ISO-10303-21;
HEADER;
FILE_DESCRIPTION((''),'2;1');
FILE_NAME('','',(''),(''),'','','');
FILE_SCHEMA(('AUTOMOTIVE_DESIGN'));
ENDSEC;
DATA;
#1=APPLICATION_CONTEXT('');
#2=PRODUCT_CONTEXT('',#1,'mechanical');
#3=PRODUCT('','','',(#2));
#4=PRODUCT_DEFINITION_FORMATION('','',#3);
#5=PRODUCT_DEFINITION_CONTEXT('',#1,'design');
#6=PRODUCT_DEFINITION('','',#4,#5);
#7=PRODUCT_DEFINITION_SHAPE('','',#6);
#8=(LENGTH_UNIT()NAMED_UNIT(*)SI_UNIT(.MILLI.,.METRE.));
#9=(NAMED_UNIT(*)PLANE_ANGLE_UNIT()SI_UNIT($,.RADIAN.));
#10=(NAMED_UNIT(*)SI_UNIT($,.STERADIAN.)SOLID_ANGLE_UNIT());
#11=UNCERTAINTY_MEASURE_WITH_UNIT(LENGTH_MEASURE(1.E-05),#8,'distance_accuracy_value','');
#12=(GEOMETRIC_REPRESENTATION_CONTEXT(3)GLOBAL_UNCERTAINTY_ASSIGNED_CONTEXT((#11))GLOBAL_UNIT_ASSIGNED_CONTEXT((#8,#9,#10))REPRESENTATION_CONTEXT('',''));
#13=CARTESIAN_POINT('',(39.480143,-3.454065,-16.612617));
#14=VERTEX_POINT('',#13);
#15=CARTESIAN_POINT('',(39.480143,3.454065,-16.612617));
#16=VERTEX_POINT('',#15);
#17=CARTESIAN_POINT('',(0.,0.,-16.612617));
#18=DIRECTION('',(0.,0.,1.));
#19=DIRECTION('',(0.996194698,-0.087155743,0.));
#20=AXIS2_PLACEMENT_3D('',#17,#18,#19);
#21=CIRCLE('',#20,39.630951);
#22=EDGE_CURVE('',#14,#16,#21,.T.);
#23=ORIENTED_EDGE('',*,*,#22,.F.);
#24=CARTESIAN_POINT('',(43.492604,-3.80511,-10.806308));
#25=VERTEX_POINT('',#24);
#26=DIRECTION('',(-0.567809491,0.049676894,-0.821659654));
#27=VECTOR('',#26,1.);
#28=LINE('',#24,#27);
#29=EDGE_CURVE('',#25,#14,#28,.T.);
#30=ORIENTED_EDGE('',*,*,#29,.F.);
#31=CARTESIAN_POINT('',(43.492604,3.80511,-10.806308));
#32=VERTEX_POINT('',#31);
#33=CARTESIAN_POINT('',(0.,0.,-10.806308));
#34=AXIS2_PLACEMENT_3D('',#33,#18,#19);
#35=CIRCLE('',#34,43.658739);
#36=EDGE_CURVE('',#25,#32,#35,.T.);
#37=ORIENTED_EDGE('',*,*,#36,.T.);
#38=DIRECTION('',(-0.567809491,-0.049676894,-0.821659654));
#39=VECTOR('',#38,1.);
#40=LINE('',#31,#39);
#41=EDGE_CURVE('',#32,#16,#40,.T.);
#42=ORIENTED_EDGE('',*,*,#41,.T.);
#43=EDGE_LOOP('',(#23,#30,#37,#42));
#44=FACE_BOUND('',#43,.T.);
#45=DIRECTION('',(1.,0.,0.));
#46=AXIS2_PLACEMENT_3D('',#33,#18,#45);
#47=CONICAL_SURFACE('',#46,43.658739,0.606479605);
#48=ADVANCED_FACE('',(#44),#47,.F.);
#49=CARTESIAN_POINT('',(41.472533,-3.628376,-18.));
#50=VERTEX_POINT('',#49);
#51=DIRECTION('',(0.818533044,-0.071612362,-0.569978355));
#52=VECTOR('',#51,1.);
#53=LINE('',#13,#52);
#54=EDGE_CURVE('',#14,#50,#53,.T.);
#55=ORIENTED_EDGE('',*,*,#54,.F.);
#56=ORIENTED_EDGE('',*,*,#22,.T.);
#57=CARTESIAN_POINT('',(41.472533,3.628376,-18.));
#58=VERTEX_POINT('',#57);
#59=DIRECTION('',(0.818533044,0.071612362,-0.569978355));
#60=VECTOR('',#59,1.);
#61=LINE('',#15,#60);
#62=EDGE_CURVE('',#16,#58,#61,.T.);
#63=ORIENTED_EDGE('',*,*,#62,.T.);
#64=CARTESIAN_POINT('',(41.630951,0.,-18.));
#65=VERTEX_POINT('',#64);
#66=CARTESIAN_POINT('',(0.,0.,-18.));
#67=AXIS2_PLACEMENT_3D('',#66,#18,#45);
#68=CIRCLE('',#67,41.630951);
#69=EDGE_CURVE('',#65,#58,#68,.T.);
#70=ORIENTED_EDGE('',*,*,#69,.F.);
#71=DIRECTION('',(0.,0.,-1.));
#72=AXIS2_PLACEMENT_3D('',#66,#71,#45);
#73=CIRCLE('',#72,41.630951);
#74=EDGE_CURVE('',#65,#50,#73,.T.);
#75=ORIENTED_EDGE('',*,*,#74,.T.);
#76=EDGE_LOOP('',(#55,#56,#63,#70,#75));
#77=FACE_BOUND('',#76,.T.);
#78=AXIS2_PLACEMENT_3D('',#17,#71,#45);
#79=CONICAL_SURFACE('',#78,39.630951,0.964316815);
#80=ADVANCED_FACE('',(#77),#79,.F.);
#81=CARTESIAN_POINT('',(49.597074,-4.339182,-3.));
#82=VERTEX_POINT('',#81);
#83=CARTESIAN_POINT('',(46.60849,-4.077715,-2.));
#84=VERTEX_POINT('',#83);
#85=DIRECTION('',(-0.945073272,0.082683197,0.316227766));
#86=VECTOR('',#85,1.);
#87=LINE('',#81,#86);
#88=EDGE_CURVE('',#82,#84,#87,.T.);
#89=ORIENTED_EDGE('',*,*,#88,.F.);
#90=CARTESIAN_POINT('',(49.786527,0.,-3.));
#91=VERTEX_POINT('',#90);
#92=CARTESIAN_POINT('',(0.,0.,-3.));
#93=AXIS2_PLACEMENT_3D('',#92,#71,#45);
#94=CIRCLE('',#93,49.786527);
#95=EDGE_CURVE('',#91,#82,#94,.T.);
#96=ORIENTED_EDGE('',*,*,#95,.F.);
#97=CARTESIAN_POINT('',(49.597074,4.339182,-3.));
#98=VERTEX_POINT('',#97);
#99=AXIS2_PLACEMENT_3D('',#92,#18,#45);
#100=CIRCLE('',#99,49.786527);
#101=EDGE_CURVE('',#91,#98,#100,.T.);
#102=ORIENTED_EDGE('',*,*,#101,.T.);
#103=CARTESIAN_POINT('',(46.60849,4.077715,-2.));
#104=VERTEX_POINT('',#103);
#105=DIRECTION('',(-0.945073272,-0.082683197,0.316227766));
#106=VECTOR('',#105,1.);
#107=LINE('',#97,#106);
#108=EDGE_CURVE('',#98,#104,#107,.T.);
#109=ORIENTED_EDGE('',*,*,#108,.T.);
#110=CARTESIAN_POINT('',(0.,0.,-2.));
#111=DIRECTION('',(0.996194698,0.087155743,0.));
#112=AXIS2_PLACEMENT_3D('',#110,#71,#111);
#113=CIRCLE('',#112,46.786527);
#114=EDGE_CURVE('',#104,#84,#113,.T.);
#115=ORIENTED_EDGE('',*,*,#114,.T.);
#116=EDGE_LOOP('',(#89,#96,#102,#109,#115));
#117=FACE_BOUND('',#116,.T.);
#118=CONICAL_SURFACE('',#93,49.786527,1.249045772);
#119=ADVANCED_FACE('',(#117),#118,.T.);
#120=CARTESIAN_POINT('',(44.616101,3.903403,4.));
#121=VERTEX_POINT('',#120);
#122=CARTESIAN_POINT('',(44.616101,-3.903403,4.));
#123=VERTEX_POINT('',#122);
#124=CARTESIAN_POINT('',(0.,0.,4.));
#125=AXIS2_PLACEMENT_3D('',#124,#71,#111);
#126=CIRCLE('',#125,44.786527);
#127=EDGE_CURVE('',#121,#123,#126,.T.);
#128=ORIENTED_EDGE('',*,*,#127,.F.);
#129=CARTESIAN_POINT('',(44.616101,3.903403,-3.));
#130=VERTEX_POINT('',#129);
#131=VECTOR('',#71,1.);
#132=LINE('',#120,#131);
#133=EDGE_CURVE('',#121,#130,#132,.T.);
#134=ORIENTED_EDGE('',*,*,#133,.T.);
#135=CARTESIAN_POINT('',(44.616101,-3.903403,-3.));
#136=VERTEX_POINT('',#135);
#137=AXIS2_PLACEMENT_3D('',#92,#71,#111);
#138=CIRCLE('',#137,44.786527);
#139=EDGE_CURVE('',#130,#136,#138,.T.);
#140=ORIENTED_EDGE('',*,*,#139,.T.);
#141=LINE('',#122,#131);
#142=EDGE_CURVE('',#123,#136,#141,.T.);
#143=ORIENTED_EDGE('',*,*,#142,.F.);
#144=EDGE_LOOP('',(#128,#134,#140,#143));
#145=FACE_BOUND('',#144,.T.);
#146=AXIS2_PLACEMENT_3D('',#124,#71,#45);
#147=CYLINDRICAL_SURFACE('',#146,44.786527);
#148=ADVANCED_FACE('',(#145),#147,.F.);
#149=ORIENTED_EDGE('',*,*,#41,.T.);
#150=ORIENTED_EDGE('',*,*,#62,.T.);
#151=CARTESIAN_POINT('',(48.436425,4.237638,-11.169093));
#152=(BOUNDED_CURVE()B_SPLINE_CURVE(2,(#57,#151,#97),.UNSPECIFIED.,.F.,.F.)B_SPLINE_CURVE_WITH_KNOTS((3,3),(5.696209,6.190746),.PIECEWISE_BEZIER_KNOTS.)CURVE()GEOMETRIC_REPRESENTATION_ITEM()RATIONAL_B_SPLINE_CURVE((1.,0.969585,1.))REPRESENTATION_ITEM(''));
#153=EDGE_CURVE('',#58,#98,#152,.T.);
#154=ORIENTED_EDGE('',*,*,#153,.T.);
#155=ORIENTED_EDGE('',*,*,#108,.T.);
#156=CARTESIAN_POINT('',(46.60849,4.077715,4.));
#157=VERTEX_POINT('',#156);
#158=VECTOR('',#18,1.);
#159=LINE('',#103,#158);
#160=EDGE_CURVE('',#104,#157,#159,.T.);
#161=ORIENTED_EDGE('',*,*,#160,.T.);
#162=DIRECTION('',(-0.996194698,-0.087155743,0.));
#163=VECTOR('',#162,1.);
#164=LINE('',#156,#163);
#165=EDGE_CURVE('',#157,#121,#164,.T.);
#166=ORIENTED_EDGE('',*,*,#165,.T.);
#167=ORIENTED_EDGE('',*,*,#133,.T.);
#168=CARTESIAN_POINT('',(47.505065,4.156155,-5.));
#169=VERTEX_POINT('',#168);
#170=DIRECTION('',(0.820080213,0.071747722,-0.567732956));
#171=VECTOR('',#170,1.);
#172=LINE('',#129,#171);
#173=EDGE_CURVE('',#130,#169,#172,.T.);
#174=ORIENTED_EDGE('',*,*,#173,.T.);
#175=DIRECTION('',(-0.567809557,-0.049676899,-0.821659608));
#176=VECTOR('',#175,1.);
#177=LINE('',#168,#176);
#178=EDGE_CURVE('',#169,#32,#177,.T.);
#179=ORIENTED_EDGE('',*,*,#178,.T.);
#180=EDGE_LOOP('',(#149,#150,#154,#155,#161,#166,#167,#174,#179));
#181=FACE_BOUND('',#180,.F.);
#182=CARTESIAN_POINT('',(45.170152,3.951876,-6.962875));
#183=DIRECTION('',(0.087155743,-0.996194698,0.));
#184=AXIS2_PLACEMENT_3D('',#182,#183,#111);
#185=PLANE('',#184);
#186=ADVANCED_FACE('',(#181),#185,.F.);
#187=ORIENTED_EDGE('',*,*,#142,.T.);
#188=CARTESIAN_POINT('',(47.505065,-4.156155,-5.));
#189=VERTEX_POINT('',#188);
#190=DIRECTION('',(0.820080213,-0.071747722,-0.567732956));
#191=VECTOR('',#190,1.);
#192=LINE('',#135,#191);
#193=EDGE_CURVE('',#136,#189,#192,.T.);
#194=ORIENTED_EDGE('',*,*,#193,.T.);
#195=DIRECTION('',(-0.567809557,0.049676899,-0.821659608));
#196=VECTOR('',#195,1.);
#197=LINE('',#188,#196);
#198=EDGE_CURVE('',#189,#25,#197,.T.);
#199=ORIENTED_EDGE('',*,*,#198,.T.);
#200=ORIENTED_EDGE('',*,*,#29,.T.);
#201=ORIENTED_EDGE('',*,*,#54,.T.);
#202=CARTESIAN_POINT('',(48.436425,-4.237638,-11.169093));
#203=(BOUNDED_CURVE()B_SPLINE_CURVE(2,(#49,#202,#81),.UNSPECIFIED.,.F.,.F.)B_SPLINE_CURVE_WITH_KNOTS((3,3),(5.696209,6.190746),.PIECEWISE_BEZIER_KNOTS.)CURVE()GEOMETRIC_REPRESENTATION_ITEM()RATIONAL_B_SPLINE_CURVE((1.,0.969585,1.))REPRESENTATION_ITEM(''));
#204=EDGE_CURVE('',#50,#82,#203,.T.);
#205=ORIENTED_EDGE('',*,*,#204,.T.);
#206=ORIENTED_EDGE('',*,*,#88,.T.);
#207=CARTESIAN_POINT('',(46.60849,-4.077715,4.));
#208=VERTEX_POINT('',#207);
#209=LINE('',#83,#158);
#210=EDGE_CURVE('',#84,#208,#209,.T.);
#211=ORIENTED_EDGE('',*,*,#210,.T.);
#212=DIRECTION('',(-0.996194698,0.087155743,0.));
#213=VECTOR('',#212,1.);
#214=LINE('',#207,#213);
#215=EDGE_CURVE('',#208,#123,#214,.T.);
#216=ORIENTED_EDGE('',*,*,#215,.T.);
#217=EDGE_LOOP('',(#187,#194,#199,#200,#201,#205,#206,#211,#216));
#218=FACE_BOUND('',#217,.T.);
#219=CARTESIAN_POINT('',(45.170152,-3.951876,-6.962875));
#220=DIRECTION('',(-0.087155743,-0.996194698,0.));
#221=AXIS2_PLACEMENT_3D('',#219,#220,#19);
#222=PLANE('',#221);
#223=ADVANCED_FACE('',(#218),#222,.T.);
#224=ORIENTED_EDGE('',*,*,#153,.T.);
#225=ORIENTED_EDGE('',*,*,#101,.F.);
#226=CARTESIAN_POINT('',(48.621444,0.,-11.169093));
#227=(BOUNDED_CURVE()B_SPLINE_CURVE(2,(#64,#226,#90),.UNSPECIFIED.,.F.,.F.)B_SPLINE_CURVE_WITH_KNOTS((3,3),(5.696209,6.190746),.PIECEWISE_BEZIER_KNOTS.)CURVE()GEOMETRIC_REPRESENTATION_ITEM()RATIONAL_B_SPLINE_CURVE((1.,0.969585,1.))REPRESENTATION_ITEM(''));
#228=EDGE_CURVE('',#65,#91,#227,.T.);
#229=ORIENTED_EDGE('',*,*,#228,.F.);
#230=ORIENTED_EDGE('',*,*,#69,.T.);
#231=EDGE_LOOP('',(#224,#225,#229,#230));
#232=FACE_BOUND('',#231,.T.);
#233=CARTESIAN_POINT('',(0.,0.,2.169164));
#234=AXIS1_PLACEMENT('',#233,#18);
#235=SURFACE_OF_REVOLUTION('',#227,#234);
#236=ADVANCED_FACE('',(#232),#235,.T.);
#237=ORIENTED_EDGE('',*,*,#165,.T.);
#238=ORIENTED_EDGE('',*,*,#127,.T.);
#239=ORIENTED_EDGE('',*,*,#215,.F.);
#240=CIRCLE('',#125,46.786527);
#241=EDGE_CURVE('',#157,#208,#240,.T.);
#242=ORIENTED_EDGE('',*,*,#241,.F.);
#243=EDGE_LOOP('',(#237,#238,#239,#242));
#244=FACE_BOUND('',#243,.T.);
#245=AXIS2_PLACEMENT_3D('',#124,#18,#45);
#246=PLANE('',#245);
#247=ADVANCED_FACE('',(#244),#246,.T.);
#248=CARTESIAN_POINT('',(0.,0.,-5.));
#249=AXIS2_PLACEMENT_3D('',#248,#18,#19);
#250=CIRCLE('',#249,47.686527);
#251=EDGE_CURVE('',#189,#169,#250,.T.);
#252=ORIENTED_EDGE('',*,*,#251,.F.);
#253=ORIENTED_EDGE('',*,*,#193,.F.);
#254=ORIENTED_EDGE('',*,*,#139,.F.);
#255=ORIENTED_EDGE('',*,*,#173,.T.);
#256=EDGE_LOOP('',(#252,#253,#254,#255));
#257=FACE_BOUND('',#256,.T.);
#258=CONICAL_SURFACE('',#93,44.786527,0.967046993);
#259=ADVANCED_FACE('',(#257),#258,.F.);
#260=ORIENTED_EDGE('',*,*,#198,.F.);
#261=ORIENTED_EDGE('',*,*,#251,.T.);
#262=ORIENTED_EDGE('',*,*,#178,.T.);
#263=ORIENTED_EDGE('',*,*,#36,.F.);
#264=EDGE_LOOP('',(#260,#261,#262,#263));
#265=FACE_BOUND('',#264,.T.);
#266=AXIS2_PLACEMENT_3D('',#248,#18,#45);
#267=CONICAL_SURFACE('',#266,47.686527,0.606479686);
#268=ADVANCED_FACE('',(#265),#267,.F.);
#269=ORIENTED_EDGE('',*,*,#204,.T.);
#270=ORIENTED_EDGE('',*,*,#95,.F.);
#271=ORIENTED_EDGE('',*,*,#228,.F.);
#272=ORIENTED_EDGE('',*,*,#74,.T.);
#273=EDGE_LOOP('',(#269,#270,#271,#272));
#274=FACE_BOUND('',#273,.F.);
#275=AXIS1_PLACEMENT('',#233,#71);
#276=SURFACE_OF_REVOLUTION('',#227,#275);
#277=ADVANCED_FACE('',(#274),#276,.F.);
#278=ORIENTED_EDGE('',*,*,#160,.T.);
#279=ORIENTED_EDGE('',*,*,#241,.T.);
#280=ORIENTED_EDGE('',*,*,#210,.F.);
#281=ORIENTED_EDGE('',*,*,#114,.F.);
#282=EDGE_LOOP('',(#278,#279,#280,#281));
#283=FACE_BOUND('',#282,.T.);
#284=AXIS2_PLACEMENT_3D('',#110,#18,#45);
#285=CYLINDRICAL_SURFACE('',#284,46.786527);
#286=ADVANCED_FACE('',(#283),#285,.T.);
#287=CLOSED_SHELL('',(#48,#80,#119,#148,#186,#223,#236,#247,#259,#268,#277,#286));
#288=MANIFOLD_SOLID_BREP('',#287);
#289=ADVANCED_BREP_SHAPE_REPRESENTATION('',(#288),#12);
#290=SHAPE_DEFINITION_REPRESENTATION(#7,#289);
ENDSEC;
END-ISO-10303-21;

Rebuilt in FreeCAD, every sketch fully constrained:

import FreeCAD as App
import Part
import Sketcher

doc = App.newDocument("Part")
body = doc.addObject("PartDesign::Body", "Body")

sketch1 = body.newObject("Sketcher::SketchObject", "Sketch")
sketch1.AttachmentSupport = (doc.getObject("XZ_Plane"), [""])
sketch1.MapMode = "FlatFace"
sketch1.addGeometry(Part.LineSegment(App.Vector(39.630951, -16.612617, 0), App.Vector(41.630951, -18, 0)), False)
sketch1.addGeometry(Part.BSplineCurve([App.Vector(41.630951, -18, 0), App.Vector(48.621444, -11.169093, 0), App.Vector(49.786527, -3, 0)], [3, 3], [5.696209, 6.190746], False, 2, [1, 0.969585, 1], False), False)
sketch1.addGeometry(Part.LineSegment(App.Vector(49.786527, -3, 0), App.Vector(46.786527, -2, 0)), False)
sketch1.addGeometry(Part.LineSegment(App.Vector(46.786527, -2, 0), App.Vector(46.786527, 4, 0)), False)
sketch1.addGeometry(Part.LineSegment(App.Vector(46.786527, 4, 0), App.Vector(44.786527, 4, 0)), False)
sketch1.addGeometry(Part.LineSegment(App.Vector(44.786527, 4, 0), App.Vector(44.786527, -3, 0)), False)
sketch1.addGeometry(Part.LineSegment(App.Vector(44.786527, -3, 0), App.Vector(47.686527, -5, 0)), False)
sketch1.addGeometry(Part.LineSegment(App.Vector(47.686527, -5, 0), App.Vector(43.658739, -10.806308, 0)), False)
sketch1.addGeometry(Part.LineSegment(App.Vector(43.658739, -10.806308, 0), App.Vector(39.630951, -16.612617, 0)), False)
sketch1.addConstraint(Sketcher.Constraint("Block", 1))
sketch1.addConstraint(Sketcher.Constraint("Coincident", 0, 2, 1, 1))
sketch1.addConstraint(Sketcher.Constraint("Coincident", 1, 2, 2, 1))
sketch1.addConstraint(Sketcher.Constraint("Coincident", 2, 2, 3, 1))
sketch1.addConstraint(Sketcher.Constraint("Coincident", 3, 2, 4, 1))
sketch1.addConstraint(Sketcher.Constraint("Coincident", 4, 2, 5, 1))
sketch1.addConstraint(Sketcher.Constraint("Coincident", 5, 2, 6, 1))
sketch1.addConstraint(Sketcher.Constraint("Coincident", 6, 2, 7, 1))
sketch1.addConstraint(Sketcher.Constraint("Coincident", 7, 2, 8, 1))
sketch1.addConstraint(Sketcher.Constraint("Coincident", 8, 2, 0, 1))
sketch1.addConstraint(Sketcher.Constraint("Vertical", 3))
sketch1.addConstraint(Sketcher.Constraint("Horizontal", 4))
sketch1.addConstraint(Sketcher.Constraint("Vertical", 5))
sketch1.addConstraint(Sketcher.Constraint("Perpendicular", 0, 7))
sketch1.addConstraint(Sketcher.Constraint("Parallel", 7, 8))
sketch1.addConstraint(Sketcher.Constraint("Equal", 7, 8))
sketch1.addConstraint(Sketcher.Constraint("DistanceX", 4, 2, 4, 1, 2.0))
sketch1.addConstraint(Sketcher.Constraint("DistanceY", 3, 1, 3, 2, 6.0))
sketch1.addConstraint(Sketcher.Constraint("DistanceY", 5, 2, 5, 1, 7.0))
sketch1.addConstraint(Sketcher.Constraint("DistanceY", 2, 2, -1, 1, 2.0))
sketch1.addConstraint(Sketcher.Constraint("DistanceY", 6, 2, -1, 1, 5.0))
sketch1.addConstraint(Sketcher.Constraint("DistanceX", 8, 2, 0, 2, 2.0))
sketch1.addConstraint(Sketcher.Constraint("DistanceX", 2, 2, 6, 2, 0.9))
sketch1.addConstraint(Sketcher.Constraint("Distance", 7, 7.066561))
revolution = body.newObject("PartDesign::Revolution", "Revolution")
revolution.Profile = sketch1
revolution.ReferenceAxis = (sketch1, ["V_Axis"])
revolution.Angle = 5
revolution.Reversed = True

sketch2 = body.newObject("Sketcher::SketchObject", "Sketch001")
sketch2.AttachmentSupport = (doc.getObject("XZ_Plane"), [""])
sketch2.MapMode = "FlatFace"
sketch2.addGeometry(Part.LineSegment(App.Vector(39.630951, -16.612617, 0), App.Vector(41.630951, -18, 0)), False)
sketch2.addGeometry(Part.BSplineCurve([App.Vector(41.630951, -18, 0), App.Vector(48.621444, -11.169093, 0), App.Vector(49.786527, -3, 0)], [3, 3], [5.696209, 6.190746], False, 2, [1, 0.969585, 1], False), False)
sketch2.addGeometry(Part.LineSegment(App.Vector(49.786527, -3, 0), App.Vector(46.786527, -2, 0)), False)
sketch2.addGeometry(Part.LineSegment(App.Vector(46.786527, -2, 0), App.Vector(46.786527, 4, 0)), False)
sketch2.addGeometry(Part.LineSegment(App.Vector(46.786527, 4, 0), App.Vector(44.786527, 4, 0)), False)
sketch2.addGeometry(Part.LineSegment(App.Vector(44.786527, 4, 0), App.Vector(44.786527, -3, 0)), False)
sketch2.addGeometry(Part.LineSegment(App.Vector(44.786527, -3, 0), App.Vector(47.686527, -5, 0)), False)
sketch2.addGeometry(Part.LineSegment(App.Vector(47.686527, -5, 0), App.Vector(43.658739, -10.806308, 0)), False)
sketch2.addGeometry(Part.LineSegment(App.Vector(43.658739, -10.806308, 0), App.Vector(39.630951, -16.612617, 0)), False)
sketch2.addConstraint(Sketcher.Constraint("Block", 1))
sketch2.addConstraint(Sketcher.Constraint("Coincident", 0, 2, 1, 1))
sketch2.addConstraint(Sketcher.Constraint("Coincident", 1, 2, 2, 1))
sketch2.addConstraint(Sketcher.Constraint("Coincident", 2, 2, 3, 1))
sketch2.addConstraint(Sketcher.Constraint("Coincident", 3, 2, 4, 1))
sketch2.addConstraint(Sketcher.Constraint("Coincident", 4, 2, 5, 1))
sketch2.addConstraint(Sketcher.Constraint("Coincident", 5, 2, 6, 1))
sketch2.addConstraint(Sketcher.Constraint("Coincident", 6, 2, 7, 1))
sketch2.addConstraint(Sketcher.Constraint("Coincident", 7, 2, 8, 1))
sketch2.addConstraint(Sketcher.Constraint("Coincident", 8, 2, 0, 1))
sketch2.addConstraint(Sketcher.Constraint("Vertical", 3))
sketch2.addConstraint(Sketcher.Constraint("Horizontal", 4))
sketch2.addConstraint(Sketcher.Constraint("Vertical", 5))
sketch2.addConstraint(Sketcher.Constraint("Perpendicular", 0, 7))
sketch2.addConstraint(Sketcher.Constraint("Parallel", 7, 8))
sketch2.addConstraint(Sketcher.Constraint("Equal", 7, 8))
sketch2.addConstraint(Sketcher.Constraint("DistanceX", 4, 2, 4, 1, 2.0))
sketch2.addConstraint(Sketcher.Constraint("DistanceY", 3, 1, 3, 2, 6.0))
sketch2.addConstraint(Sketcher.Constraint("DistanceY", 5, 2, 5, 1, 7.0))
sketch2.addConstraint(Sketcher.Constraint("DistanceY", 2, 2, -1, 1, 2.0))
sketch2.addConstraint(Sketcher.Constraint("DistanceY", 6, 2, -1, 1, 5.0))
sketch2.addConstraint(Sketcher.Constraint("DistanceX", 8, 2, 0, 2, 2.0))
sketch2.addConstraint(Sketcher.Constraint("DistanceX", 2, 2, 6, 2, 0.9))
sketch2.addConstraint(Sketcher.Constraint("Distance", 7, 7.066561))
revolution2 = body.newObject("PartDesign::Revolution", "Revolution001")
revolution2.Profile = sketch2
revolution2.ReferenceAxis = (sketch2, ["V_Axis"])
revolution2.Angle = 5

doc.recompute()
